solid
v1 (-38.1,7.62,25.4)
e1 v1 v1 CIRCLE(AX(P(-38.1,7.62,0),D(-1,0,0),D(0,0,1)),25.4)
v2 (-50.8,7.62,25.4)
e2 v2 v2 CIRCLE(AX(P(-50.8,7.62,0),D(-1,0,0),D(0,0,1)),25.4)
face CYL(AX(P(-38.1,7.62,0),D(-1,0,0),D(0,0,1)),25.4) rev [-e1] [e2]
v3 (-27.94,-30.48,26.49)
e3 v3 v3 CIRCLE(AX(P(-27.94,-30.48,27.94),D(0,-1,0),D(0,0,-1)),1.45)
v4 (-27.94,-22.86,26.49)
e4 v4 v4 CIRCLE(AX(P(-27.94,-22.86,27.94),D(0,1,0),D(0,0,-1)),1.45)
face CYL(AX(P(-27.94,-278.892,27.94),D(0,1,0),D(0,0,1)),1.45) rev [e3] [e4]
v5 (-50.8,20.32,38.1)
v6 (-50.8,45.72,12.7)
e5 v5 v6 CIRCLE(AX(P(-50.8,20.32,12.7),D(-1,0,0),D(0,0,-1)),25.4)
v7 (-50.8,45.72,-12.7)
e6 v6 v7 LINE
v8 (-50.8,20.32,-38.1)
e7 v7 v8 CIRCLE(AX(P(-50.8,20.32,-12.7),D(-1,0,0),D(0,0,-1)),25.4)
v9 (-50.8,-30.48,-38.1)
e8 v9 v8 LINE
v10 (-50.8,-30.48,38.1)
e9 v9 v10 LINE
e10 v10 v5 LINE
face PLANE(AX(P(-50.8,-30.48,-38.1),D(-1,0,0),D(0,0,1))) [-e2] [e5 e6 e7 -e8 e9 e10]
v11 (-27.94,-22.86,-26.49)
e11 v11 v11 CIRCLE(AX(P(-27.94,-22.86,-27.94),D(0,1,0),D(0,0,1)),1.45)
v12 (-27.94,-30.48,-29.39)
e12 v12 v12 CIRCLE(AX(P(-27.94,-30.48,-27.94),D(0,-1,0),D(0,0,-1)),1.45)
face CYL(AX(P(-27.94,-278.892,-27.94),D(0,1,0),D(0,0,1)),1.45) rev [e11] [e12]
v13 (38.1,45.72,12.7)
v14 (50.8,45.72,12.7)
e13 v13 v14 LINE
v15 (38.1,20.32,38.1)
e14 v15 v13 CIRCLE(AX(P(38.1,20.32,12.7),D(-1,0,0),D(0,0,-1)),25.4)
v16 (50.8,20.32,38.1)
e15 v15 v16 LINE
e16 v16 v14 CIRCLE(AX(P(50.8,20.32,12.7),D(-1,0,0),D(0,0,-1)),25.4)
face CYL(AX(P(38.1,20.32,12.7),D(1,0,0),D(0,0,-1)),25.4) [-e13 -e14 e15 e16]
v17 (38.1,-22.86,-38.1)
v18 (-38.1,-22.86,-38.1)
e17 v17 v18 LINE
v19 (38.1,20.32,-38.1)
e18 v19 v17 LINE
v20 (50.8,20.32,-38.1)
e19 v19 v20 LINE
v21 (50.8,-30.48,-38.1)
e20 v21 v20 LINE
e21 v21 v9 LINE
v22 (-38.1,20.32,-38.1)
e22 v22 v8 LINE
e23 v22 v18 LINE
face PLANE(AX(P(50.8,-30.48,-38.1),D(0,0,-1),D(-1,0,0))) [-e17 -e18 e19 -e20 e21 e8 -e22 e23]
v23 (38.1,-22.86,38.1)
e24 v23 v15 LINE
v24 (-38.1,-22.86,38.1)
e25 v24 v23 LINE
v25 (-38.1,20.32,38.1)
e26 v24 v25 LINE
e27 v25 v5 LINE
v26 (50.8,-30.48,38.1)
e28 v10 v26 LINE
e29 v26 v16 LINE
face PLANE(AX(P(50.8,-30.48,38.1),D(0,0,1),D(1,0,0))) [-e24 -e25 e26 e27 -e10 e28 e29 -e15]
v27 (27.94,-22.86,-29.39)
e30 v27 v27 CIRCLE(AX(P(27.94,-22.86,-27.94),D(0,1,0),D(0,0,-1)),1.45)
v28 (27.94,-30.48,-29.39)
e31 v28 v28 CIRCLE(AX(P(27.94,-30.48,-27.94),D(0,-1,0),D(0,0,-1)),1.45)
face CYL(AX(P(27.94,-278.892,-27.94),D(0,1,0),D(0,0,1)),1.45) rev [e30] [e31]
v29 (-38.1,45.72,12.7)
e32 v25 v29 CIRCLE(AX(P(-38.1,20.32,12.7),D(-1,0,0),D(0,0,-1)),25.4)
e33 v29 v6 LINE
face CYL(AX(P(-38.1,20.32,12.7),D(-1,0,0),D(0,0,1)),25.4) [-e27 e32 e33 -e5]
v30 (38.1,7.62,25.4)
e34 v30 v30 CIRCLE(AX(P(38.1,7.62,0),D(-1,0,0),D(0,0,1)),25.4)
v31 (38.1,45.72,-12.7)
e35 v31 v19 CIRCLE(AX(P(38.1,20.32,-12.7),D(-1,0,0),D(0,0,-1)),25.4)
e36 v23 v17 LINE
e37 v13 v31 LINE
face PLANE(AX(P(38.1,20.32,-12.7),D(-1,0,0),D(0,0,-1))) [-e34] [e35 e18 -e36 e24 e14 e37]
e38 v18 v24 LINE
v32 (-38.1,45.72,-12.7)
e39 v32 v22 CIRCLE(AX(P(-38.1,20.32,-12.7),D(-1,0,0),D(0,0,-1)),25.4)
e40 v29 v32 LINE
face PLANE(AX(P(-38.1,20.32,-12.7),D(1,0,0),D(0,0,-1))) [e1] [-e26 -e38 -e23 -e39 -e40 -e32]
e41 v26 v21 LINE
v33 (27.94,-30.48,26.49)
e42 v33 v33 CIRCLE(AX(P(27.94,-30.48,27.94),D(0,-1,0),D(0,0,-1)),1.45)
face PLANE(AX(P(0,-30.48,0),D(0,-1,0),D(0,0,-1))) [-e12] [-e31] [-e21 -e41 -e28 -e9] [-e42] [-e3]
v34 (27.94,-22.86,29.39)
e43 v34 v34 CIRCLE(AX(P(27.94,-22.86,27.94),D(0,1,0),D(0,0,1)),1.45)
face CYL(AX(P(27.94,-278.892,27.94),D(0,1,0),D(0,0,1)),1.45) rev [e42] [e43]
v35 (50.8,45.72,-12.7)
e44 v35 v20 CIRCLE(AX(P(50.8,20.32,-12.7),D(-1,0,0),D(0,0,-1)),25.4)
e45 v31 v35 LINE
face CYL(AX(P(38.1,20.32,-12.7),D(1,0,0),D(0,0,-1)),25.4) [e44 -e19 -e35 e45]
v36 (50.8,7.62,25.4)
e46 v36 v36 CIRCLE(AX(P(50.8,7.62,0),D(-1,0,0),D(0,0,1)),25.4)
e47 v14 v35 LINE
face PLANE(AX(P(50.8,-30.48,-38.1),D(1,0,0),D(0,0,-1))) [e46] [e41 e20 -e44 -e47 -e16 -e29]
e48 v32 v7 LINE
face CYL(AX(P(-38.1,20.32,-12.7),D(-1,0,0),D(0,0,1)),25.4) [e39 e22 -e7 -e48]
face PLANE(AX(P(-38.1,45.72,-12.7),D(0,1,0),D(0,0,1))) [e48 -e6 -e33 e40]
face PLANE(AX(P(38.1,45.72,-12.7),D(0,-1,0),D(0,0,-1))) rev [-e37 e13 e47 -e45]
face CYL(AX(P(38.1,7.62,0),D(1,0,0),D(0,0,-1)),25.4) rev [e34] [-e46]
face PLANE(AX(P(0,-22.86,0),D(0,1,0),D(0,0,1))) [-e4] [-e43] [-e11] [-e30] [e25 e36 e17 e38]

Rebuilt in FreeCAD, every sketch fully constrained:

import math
import FreeCAD as App
import Part
import Sketcher
from FreeCAD import Vector
Q = App.Units.Quantity

doc = App.newDocument("Part")
body = doc.addObject("PartDesign::Body", "Body")

# Sketch on XZ plane
sketch1 = body.newObject("Sketcher::SketchObject", "Sketch")
sketch1.AttachmentSupport = (doc.getObject("XZ_Plane"), [""])
sketch1.MapMode = "FlatFace"
sketch1.addGeometry(Part.LineSegment(Vector(-51, -38, 0), Vector(-51, 38, 0)), False)
sketch1.addGeometry(Part.LineSegment(Vector(-51, 38, 0), Vector(51, 38, 0)), False)
sketch1.addGeometry(Part.LineSegment(Vector(51, 38, 0), Vector(51, -38, 0)), False)
sketch1.addGeometry(Part.LineSegment(Vector(51, -38, 0), Vector(-51, -38, 0)), False)
sketch1.addConstraint(Sketcher.Constraint("Coincident", 0, 2, 1, 1))
sketch1.addConstraint(Sketcher.Constraint("Coincident", 1, 2, 2, 1))
sketch1.addConstraint(Sketcher.Constraint("Coincident", 2, 2, 3, 1))
sketch1.addConstraint(Sketcher.Constraint("Coincident", 3, 2, 0, 1))
sketch1.addConstraint(Sketcher.Constraint("Vertical", 0))
sketch1.addConstraint(Sketcher.Constraint("Horizontal", 1))
sketch1.addConstraint(Sketcher.Constraint("Vertical", 2))
sketch1.addConstraint(Sketcher.Constraint("Horizontal", 3))
sketch1.addConstraint(Sketcher.Constraint("Symmetric", 0, 2, 2, 2, -1, 1))
sketch1.addConstraint(Sketcher.Constraint("DistanceX", 1, 1, 1, 2, Q("4 in")))
sketch1.addConstraint(Sketcher.Constraint("DistanceY", 0, 1, 0, 2, Q("3 in")))
pad1 = body.newObject("PartDesign::Pad", "Pad")
pad1.Profile = sketch1
pad1.Length = Q("1.2 in")

# Sketch on YZ plane
sketch2 = body.newObject("Sketcher::SketchObject", "Sketch001")
sketch2.AttachmentSupport = (doc.getObject("YZ_Plane"), [""])
sketch2.MapMode = "FlatFace"
sketch2.AttachmentOffset = App.Placement(Vector(0, 0, -2 * 25.4), App.Rotation())
sketch2.addGeometry(Part.LineSegment(Vector(-30, -38, 0), Vector(-30, 38, 0)), False)
sketch2.addGeometry(Part.LineSegment(Vector(-30, 38, 0), Vector(20, 38, 0)), False)
sketch2.addGeometry(Part.ArcOfCircle(Part.Circle(Vector(20, 13, 0), Vector(0, 0, 1), 25), math.radians(0), math.radians(90)), False)
sketch2.addGeometry(Part.LineSegment(Vector(46, 13, 0), Vector(46, -13, 0)), False)
sketch2.addGeometry(Part.ArcOfCircle(Part.Circle(Vector(20, -13, 0), Vector(0, 0, 1), 25), math.radians(-90), math.radians(0)), False)
sketch2.addGeometry(Part.LineSegment(Vector(20, -38, 0), Vector(-30, -38, 0)), False)
sketch2.addGeometry(Part.Circle(Vector(8, 0, 0), Vector(0, 0, 1), 25), False)
sketch2.addConstraint(Sketcher.Constraint("Coincident", 0, 2, 1, 1))
sketch2.addConstraint(Sketcher.Constraint("Tangent", 1, 2, 2, 2))
sketch2.addConstraint(Sketcher.Constraint("Tangent", 2, 1, 3, 1))
sketch2.addConstraint(Sketcher.Constraint("Tangent", 3, 2, 4, 2))
sketch2.addConstraint(Sketcher.Constraint("Tangent", 4, 1, 5, 1))
sketch2.addConstraint(Sketcher.Constraint("Coincident", 5, 2, 0, 1))
sketch2.addConstraint(Sketcher.Constraint("Vertical", 0))
sketch2.addConstraint(Sketcher.Constraint("Horizontal", 1))
sketch2.addConstraint(Sketcher.Constraint("Vertical", 3))
sketch2.addConstraint(Sketcher.Constraint("Horizontal", 5))
sketch2.addConstraint(Sketcher.Constraint("Equal", 2, 4))
sketch2.addConstraint(Sketcher.Constraint("Equal", 4, 6))
sketch2.addConstraint(Sketcher.Constraint("PointOnObject", 6, 3, -1))
sketch2.addConstraint(Sketcher.Constraint("Diameter", 6, Q("2 in")))
sketch2.addConstraint(Sketcher.Constraint("DistanceX", 1, 1, 1, 2, Q("2 in")))
sketch2.addConstraint(Sketcher.Constraint("DistanceY", 0, 1, 0, 2, Q("3 in")))
sketch2.addConstraint(Sketcher.Constraint("DistanceX", -1, 1, 2, 3, Q("0.8 in")))
sketch2.addConstraint(Sketcher.Constraint("DistanceY", -1, 1, 2, 3, Q("0.5 in")))
sketch2.addConstraint(Sketcher.Constraint("DistanceX", -1, 1, 6, 3, Q("0.3 in")))
pad2 = body.newObject("PartDesign::Pad", "Pad001")
pad2.Profile = sketch2
pad2.Length = Q("0.5 in")
doc.recompute()

mirrored = body.newObject("PartDesign::Mirrored", "Mirrored")
mirrored.Originals = [pad2]
mirrored.MirrorPlane = (doc.getObject("YZ_Plane"), [""])
body.Tip = mirrored

# Sketch on XZ plane
sketch3 = body.newObject("Sketcher::SketchObject", "Sketch002")
sketch3.AttachmentSupport = (doc.getObject("XZ_Plane"), [""])
sketch3.MapMode = "FlatFace"
sketch3.addGeometry(Part.LineSegment(Vector(-38, -38, 0), Vector(-38, 38, 0)), False)
sketch3.addGeometry(Part.LineSegment(Vector(-38, 38, 0), Vector(38, 38, 0)), False)
sketch3.addGeometry(Part.LineSegment(Vector(38, 38, 0), Vector(38, -38, 0)), False)
sketch3.addGeometry(Part.LineSegment(Vector(38, -38, 0), Vector(-38, -38, 0)), False)
sketch3.addConstraint(Sketcher.Constraint("Coincident", 0, 2, 1, 1))
sketch3.addConstraint(Sketcher.Constraint("Coincident", 1, 2, 2, 1))
sketch3.addConstraint(Sketcher.Constraint("Coincident", 2, 2, 3, 1))
sketch3.addConstraint(Sketcher.Constraint("Coincident", 3, 2, 0, 1))
sketch3.addConstraint(Sketcher.Constraint("Vertical", 0))
sketch3.addConstraint(Sketcher.Constraint("Horizontal", 1))
sketch3.addConstraint(Sketcher.Constraint("Vertical", 2))
sketch3.addConstraint(Sketcher.Constraint("Horizontal", 3))
sketch3.addConstraint(Sketcher.Constraint("Symmetric", 0, 2, 2, 2, -1, 1))
sketch3.addConstraint(Sketcher.Constraint("Equal", 3, 0))
sketch3.addConstraint(Sketcher.Constraint("DistanceX", 1, 1, 1, 2, Q("3 in")))
pocket1 = body.newObject("PartDesign::Pocket", "Pocket")
pocket1.Profile = sketch3
pocket1.Length = Q("0.9 in")
pocket1.Reversed = True

# Sketch on YZ plane
sketch4 = body.newObject("Sketcher::SketchObject", "Sketch003")
sketch4.AttachmentSupport = (doc.getObject("YZ_Plane"), [""])
sketch4.MapMode = "FlatFace"
sketch4.AttachmentOffset = App.Placement(Vector(0, 0, -2 * 25.4), App.Rotation())
sketch4.addGeometry(Part.Circle(Vector(8, 0, 0), Vector(0, 0, 1), 25), False)
sketch4.addConstraint(Sketcher.Constraint("PointOnObject", 0, 3, -1))
sketch4.addConstraint(Sketcher.Constraint("Diameter", 0, Q("2 in")))
sketch4.addConstraint(Sketcher.Constraint("DistanceX", -1, 1, 0, 3, Q("0.3 in")))
pocket2 = body.newObject("PartDesign::Pocket", "Pocket001")
pocket2.Profile = sketch4
pocket2.Length = Q("10.08 in")
pocket2.Reversed = True

# Sketch on XZ plane
sketch5 = body.newObject("Sketcher::SketchObject", "Sketch004")
sketch5.AttachmentSupport = (doc.getObject("XZ_Plane"), [""])
sketch5.MapMode = "FlatFace"
sketch5.AttachmentOffset = App.Placement(Vector(0, 0, 0.9 * 25.4), App.Rotation())
sketch5.addGeometry(Part.Circle(Vector(-27.9, -27.9, 0), Vector(0, 0, 1), 1.4), False)
sketch5.addGeometry(Part.Circle(Vector(27.9, -27.9, 0), Vector(0, 0, 1), 1.4), False)
sketch5.addGeometry(Part.Circle(Vector(27.9, 27.9, 0), Vector(0, 0, 1), 1.4), False)
sketch5.addGeometry(Part.Circle(Vector(-27.9, 27.9, 0), Vector(0, 0, 1), 1.4), False)
sketch5.addConstraint(Sketcher.Constraint("Equal", 0, 1))
sketch5.addConstraint(Sketcher.Constraint("Equal", 1, 2))
sketch5.addConstraint(Sketcher.Constraint("Equal", 2, 3))
sketch5.addConstraint(Sketcher.Constraint("Symmetric", 0, 3, 2, 3, -1, 1))
sketch5.addConstraint(Sketcher.Constraint("Symmetric", 1, 3, 3, 3, -1, 1))
sketch5.addConstraint(Sketcher.Constraint("Symmetric", 0, 3, 1, 3, -2))
sketch5.addConstraint(Sketcher.Constraint("DistanceX", 0, 3, -1, 1, Q("1.1 in")))
sketch5.addConstraint(Sketcher.Constraint("DistanceY", 0, 3, -1, 1, Q("1.1 in")))
sketch5.addConstraint(Sketcher.Constraint("Diameter", 0, 2.9))
pocket3 = body.newObject("PartDesign::Pocket", "Pocket002")
pocket3.Profile = sketch5
pocket3.Length = Q("10.08 in")
pocket3.Reversed = True

doc.recompute()
